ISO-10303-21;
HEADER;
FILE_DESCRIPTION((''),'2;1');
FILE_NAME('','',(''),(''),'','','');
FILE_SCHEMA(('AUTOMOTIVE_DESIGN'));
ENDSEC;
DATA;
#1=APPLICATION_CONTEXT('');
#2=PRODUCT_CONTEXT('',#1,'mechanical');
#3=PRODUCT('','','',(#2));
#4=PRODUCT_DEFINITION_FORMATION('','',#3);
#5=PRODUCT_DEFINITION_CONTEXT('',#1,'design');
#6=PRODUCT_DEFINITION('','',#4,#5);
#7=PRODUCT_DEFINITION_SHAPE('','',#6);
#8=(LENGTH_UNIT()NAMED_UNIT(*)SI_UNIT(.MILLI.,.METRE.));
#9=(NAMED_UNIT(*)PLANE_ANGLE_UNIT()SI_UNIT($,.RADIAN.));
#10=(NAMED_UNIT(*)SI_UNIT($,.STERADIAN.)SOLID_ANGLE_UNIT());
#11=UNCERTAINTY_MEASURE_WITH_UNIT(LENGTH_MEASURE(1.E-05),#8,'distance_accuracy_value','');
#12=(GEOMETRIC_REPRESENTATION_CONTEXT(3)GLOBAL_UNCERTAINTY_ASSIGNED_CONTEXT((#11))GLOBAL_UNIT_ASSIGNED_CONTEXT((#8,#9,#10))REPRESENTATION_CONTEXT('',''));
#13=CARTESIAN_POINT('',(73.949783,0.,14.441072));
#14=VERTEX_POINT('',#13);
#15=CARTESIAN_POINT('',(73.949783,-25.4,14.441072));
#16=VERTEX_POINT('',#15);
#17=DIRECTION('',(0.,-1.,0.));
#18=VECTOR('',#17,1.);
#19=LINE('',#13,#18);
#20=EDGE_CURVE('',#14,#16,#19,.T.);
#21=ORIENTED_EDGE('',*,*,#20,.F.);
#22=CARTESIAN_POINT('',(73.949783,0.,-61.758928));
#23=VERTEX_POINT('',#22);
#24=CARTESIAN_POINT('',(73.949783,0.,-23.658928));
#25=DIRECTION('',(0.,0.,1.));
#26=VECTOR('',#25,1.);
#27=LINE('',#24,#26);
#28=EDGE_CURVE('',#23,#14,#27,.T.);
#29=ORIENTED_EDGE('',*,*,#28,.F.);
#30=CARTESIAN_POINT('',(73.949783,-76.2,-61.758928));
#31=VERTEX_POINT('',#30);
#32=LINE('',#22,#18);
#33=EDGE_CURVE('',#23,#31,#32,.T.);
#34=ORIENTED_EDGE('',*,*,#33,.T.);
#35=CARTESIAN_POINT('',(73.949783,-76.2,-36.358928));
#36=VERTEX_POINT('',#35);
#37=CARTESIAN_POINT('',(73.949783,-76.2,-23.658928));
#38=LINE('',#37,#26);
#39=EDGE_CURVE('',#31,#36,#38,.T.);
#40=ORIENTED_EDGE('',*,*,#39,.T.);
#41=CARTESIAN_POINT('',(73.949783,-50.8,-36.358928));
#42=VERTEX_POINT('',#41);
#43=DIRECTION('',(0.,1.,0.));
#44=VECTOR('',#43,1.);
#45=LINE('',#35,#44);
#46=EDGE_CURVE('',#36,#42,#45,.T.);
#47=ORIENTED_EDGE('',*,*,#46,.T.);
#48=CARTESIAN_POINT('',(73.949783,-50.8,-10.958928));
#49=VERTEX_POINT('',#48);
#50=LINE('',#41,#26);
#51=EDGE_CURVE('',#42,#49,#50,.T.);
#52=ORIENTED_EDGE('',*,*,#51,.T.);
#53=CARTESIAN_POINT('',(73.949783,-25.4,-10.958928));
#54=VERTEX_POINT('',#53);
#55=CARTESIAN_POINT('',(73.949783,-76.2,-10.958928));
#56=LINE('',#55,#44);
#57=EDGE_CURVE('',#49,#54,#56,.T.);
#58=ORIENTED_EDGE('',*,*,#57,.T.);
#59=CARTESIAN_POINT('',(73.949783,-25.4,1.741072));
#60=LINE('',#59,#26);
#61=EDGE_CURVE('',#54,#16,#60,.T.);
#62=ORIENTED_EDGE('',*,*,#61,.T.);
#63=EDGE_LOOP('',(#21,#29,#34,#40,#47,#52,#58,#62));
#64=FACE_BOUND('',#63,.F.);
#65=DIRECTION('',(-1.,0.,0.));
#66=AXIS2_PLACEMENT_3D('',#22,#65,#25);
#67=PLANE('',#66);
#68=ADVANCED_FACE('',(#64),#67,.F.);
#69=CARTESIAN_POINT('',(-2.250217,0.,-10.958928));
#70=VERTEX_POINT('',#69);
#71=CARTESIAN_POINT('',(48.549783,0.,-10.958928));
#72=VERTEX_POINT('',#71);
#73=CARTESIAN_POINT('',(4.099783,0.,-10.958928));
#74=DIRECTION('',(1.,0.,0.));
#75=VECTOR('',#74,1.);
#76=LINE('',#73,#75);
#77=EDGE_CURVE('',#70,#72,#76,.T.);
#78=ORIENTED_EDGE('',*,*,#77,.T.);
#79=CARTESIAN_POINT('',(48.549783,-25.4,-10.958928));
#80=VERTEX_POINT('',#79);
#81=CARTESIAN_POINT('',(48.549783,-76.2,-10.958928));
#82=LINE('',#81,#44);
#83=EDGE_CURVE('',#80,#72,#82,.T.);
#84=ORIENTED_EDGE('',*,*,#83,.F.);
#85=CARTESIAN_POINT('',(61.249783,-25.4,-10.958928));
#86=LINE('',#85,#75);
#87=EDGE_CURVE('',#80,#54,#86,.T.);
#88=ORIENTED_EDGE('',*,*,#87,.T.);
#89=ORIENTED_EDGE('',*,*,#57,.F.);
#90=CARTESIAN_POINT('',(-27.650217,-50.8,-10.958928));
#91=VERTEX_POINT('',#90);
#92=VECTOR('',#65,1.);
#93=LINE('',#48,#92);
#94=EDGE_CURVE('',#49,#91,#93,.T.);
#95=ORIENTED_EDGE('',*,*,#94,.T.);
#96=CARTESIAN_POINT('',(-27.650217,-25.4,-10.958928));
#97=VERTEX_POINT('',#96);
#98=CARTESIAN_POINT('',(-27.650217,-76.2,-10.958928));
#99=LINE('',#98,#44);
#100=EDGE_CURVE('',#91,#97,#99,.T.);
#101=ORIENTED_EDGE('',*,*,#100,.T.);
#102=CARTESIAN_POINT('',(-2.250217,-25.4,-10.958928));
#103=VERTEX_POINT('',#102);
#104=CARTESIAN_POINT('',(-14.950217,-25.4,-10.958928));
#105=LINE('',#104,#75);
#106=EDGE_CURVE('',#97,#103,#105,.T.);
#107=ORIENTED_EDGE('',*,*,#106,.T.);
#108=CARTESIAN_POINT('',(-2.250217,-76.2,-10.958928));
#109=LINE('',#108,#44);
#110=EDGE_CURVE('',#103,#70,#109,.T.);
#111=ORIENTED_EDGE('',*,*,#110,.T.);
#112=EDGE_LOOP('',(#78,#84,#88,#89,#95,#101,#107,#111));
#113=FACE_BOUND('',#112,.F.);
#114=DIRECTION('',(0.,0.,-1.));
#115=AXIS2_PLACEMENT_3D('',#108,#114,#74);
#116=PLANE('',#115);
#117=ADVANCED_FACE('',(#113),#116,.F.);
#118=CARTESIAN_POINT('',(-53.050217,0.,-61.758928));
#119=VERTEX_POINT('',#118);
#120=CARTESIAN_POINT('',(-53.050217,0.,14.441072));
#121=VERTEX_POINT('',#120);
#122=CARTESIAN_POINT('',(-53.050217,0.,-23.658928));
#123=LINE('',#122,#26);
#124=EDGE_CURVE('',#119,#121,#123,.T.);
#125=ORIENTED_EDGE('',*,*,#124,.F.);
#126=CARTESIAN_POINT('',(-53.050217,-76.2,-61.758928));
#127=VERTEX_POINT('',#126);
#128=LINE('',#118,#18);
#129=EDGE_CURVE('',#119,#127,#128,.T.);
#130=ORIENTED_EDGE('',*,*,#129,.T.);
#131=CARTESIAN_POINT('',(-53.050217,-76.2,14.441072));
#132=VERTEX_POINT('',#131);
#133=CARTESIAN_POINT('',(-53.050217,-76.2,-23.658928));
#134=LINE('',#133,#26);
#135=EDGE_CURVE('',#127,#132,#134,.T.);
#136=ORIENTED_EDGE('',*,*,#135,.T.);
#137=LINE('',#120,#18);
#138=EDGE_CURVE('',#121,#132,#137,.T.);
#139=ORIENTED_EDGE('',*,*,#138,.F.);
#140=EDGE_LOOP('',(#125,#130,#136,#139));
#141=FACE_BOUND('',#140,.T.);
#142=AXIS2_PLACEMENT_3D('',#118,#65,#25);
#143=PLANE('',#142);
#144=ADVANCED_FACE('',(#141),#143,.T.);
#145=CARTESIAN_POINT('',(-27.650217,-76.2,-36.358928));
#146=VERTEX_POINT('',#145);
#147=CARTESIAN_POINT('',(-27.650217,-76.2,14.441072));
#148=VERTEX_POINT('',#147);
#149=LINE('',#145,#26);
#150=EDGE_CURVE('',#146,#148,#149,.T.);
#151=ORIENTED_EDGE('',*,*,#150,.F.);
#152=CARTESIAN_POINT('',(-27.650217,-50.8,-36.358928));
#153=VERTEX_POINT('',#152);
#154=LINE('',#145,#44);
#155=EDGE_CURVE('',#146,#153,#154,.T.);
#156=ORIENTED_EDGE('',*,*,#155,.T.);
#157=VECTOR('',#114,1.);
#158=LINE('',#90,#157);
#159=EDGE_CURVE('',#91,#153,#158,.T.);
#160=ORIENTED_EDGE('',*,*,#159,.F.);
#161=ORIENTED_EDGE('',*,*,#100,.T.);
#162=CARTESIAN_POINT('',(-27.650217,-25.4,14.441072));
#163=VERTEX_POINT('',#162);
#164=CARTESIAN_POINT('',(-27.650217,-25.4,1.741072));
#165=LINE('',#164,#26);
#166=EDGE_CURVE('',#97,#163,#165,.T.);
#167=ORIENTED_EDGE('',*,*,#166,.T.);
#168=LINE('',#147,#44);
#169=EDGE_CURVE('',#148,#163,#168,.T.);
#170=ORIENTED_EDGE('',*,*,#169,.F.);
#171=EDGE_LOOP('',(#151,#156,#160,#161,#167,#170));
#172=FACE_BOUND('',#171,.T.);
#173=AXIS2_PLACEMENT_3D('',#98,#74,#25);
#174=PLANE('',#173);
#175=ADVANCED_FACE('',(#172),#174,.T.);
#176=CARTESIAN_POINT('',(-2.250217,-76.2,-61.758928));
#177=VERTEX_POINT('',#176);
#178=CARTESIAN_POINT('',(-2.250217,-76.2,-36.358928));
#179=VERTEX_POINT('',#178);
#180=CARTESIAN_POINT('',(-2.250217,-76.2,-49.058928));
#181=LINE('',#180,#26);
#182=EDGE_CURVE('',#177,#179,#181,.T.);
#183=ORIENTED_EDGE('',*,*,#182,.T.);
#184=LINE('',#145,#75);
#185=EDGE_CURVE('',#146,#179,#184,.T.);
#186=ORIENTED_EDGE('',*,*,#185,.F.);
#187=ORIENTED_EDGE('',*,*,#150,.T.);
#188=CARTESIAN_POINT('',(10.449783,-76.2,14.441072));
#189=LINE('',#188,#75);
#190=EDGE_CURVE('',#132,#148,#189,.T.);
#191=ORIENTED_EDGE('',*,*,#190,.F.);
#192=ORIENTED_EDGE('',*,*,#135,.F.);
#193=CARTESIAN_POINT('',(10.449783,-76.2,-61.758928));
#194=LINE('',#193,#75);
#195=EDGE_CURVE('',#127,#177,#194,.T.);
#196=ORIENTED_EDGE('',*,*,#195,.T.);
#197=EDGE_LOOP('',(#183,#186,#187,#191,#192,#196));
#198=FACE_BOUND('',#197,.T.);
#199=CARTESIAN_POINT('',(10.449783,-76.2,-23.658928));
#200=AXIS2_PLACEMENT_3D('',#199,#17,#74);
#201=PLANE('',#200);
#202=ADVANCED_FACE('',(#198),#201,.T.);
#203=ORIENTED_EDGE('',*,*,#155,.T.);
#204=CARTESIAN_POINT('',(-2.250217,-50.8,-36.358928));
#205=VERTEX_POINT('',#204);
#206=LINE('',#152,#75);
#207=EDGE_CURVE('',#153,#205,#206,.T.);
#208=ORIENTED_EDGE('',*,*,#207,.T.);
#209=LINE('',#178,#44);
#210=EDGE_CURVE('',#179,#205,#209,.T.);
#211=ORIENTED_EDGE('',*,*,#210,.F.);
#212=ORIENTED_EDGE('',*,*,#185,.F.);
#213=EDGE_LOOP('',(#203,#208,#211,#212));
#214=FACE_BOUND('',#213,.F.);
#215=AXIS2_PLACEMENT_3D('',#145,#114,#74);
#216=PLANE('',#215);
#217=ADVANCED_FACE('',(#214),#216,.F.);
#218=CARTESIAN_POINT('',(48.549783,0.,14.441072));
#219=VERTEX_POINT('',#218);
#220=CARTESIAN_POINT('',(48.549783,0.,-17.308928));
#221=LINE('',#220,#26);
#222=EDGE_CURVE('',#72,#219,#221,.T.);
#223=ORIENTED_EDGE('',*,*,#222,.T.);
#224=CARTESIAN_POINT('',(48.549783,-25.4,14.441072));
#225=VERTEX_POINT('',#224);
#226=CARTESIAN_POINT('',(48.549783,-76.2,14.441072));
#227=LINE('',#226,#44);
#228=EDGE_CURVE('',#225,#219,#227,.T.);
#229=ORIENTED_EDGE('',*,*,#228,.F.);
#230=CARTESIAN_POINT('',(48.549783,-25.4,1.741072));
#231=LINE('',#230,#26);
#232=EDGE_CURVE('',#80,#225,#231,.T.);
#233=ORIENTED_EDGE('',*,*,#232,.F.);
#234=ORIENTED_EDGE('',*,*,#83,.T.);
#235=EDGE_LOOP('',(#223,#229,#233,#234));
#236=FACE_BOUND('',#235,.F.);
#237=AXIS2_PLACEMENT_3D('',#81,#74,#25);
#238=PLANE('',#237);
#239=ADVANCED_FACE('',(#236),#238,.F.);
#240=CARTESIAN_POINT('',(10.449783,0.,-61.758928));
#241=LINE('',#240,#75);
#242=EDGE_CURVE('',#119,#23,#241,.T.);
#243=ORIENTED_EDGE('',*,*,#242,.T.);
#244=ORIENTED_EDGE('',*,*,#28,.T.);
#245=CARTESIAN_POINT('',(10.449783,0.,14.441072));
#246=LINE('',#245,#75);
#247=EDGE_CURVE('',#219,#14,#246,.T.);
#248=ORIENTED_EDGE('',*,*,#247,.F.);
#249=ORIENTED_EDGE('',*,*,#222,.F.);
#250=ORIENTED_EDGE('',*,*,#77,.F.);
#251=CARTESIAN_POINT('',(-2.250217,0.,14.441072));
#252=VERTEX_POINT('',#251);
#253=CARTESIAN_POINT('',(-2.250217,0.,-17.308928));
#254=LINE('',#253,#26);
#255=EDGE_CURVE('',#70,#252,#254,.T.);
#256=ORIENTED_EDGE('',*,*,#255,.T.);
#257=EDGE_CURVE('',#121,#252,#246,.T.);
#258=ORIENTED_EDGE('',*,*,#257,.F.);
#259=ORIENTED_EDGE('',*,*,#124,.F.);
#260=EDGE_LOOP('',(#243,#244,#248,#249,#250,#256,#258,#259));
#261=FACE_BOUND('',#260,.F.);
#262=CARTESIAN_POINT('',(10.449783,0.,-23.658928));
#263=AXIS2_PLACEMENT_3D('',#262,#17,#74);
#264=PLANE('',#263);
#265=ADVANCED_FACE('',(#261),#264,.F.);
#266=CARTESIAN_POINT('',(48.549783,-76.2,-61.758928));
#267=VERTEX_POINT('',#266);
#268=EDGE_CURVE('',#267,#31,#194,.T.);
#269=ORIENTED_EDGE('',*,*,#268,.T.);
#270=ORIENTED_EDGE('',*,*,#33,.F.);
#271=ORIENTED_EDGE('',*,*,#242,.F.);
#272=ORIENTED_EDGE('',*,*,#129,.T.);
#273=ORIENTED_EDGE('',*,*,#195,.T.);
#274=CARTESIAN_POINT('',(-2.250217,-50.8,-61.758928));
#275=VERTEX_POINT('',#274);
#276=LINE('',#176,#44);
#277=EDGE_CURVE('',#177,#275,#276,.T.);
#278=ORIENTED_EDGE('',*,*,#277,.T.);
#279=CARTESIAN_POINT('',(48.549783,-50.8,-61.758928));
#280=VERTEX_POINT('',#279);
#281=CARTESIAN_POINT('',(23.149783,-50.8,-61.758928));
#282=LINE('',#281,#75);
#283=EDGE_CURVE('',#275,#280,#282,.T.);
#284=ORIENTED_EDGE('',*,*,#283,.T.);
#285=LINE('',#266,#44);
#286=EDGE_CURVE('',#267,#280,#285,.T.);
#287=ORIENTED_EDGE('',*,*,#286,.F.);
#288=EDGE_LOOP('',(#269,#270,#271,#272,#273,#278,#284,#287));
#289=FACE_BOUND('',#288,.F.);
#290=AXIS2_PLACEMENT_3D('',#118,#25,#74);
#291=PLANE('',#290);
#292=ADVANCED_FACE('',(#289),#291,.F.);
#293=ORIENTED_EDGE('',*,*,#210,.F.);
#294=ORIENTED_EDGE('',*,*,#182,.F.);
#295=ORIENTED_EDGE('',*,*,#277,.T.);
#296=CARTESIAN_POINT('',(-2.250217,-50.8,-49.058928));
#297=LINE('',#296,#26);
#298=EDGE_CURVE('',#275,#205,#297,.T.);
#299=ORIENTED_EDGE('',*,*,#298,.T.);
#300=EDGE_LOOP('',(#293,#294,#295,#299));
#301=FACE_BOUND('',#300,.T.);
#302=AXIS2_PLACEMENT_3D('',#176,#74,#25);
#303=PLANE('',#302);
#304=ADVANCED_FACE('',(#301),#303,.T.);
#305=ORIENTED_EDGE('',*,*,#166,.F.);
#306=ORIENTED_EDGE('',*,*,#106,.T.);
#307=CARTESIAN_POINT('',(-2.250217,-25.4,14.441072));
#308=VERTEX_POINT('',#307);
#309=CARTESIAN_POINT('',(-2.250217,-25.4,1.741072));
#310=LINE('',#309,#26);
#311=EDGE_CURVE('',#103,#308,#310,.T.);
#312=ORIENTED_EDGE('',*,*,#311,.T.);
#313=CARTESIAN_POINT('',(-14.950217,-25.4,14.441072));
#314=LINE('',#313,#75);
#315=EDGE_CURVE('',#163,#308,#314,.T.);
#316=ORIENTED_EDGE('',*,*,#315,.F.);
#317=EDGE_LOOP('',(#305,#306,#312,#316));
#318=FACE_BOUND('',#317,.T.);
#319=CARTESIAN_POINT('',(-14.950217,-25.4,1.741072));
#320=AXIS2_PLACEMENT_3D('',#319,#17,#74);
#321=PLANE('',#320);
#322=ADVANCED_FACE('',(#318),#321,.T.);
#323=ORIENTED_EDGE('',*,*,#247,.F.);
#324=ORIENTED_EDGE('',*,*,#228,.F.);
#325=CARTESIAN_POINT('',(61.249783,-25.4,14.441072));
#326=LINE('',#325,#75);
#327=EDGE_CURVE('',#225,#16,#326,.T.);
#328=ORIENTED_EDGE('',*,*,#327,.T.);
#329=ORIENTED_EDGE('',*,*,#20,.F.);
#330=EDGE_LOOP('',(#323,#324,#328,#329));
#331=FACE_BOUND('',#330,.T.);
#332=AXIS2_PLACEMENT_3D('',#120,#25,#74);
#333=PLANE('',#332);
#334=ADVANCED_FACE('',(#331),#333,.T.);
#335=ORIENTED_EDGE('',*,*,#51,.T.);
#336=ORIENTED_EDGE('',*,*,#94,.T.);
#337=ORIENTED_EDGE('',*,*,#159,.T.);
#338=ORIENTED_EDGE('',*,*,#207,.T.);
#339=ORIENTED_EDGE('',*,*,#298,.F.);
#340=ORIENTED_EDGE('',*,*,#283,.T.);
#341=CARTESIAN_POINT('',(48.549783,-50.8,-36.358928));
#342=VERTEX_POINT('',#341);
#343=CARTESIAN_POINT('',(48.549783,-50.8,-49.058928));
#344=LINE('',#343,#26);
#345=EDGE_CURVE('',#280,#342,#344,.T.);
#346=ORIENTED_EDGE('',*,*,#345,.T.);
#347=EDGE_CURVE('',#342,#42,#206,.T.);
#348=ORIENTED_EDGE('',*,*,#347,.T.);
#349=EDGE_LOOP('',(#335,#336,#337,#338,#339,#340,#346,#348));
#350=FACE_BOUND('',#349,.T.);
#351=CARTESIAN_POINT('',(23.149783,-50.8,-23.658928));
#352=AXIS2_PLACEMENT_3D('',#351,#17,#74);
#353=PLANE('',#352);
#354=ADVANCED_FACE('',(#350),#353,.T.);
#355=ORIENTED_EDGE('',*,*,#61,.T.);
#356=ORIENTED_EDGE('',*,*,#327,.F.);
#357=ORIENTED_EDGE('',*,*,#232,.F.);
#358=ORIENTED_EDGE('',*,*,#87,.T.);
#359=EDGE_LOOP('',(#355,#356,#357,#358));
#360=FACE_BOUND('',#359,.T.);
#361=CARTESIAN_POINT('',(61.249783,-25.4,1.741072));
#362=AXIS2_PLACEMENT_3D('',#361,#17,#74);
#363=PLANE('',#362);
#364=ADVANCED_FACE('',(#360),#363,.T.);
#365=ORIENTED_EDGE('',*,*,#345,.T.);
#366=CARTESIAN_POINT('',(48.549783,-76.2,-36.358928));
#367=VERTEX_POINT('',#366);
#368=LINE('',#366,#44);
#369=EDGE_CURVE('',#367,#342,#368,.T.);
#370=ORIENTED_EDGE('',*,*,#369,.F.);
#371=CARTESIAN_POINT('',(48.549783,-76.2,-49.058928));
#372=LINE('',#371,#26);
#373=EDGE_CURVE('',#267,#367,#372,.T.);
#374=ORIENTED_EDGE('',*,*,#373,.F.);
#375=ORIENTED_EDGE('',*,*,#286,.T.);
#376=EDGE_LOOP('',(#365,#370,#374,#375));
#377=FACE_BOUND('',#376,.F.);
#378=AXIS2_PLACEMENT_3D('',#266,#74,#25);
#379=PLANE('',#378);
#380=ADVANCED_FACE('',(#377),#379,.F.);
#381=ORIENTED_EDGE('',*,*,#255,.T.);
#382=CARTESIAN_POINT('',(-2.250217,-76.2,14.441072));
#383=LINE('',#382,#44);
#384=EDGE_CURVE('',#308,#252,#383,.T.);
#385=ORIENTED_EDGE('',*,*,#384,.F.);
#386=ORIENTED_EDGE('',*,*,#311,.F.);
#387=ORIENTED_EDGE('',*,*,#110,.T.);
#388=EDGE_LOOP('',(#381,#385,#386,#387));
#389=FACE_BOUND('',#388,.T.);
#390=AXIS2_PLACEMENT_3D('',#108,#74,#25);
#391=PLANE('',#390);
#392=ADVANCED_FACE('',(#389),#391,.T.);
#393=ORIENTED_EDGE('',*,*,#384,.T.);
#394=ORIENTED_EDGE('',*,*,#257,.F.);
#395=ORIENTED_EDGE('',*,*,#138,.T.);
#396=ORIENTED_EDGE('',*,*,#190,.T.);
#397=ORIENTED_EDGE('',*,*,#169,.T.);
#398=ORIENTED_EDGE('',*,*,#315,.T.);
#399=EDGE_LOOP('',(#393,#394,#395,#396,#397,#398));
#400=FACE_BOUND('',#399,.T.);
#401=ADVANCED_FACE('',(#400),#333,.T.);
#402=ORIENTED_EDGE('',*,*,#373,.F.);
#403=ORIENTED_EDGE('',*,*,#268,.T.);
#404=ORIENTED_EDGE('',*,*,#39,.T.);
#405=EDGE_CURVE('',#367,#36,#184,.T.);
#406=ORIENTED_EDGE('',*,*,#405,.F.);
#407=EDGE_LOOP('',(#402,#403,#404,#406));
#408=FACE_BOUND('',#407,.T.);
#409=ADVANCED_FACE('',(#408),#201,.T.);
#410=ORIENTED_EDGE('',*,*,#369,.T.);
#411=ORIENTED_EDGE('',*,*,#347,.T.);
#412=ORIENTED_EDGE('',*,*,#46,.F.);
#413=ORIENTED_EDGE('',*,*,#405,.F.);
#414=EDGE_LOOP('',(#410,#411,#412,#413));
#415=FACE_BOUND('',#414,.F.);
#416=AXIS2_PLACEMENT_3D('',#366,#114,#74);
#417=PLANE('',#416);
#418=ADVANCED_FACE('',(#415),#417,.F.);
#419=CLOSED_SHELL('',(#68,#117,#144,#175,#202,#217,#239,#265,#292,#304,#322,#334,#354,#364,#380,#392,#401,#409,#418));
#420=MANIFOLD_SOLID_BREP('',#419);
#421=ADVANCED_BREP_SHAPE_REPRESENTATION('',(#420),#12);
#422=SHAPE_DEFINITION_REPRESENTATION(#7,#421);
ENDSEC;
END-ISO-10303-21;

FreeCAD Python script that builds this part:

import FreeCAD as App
import Part
import Sketcher
Q = App.Units.Quantity


def add_polygon(sketch, points):
    """Adds a closed chain of lines whose ends are joined by coincident constraints."""
    first, n = sketch.GeometryCount, len(points)
    for a, b in zip(points, points[1:] + points[:1]):
        sketch.addGeometry(Part.LineSegment(App.Vector(*a, 0), App.Vector(*b, 0)), False)
    for i in range(n):
        sketch.addConstraint(Sketcher.Constraint("Coincident", first + i, 2, first + (i + 1) % n, 1))

doc = App.newDocument("Part")
body = doc.addObject("PartDesign::Body", "Body")

# Sketch on XZ plane
sketch1 = body.newObject("Sketcher::SketchObject", "Sketch")
sketch1.AttachmentSupport = (doc.getObject("XZ_Plane"), [""])
sketch1.MapMode = "FlatFace"
add_polygon(sketch1, [(-53, 14), (-53, -62), (74, -62), (74, 14)])  # lines 0-3
sketch1.addConstraint([
    Sketcher.Constraint("Vertical", 0),
    Sketcher.Constraint("Horizontal", 1),
    Sketcher.Constraint("Vertical", 2),
    Sketcher.Constraint("Horizontal", 3),
    Sketcher.Constraint("DistanceX", 1, 1, 1, 2, Q("5 in")),
    Sketcher.Constraint("DistanceY", 0, 2, 0, 1, Q("3 in")),
    Sketcher.Constraint("DistanceX", 0, 2, -1, 1, 53.050217),
    Sketcher.Constraint("DistanceY", 0, 2, -1, 1, 61.758928),
])
pad1 = body.newObject("PartDesign::Pad", "Pad")
pad1.Profile = sketch1
pad1.Length = Q("3 in")

# Sketch on XZ plane
sketch2 = body.newObject("Sketcher::SketchObject", "Sketch001")
sketch2.AttachmentSupport = (doc.getObject("XZ_Plane"), [""])
sketch2.MapMode = "FlatFace"
sketch2.AttachmentOffset = App.Placement(App.Vector(0, 0, 3 * 25.4), App.Rotation())
add_polygon(sketch2, [(-28, 14), (-28, -11), (-2, -11), (-2, 14)])  # lines 0-3
add_polygon(sketch2, [(49, 14), (49, -11), (74, -11), (74, 14)])  # lines 4-7
sketch2.addConstraint([
    Sketcher.Constraint("Vertical", 0),
    Sketcher.Constraint("Horizontal", 1),
    Sketcher.Constraint("Vertical", 2),
    Sketcher.Constraint("Horizontal", 3),
    Sketcher.Constraint("Vertical", 4),
    Sketcher.Constraint("Horizontal", 5),
    Sketcher.Constraint("Vertical", 6),
    Sketcher.Constraint("Horizontal", 7),
    Sketcher.Constraint("Horizontal", 1, 2, 4, 2),
    Sketcher.Constraint("Horizontal", 3, 2, 6, 2),
    Sketcher.Constraint("Equal", 3, 5),
    Sketcher.Constraint("Equal", 7, 0),
    Sketcher.Constraint("DistanceX", 1, 1, 1, 2, Q("1 in")),
    Sketcher.Constraint("DistanceX", 1, 2, 4, 2, Q("2 in")),
    Sketcher.Constraint("DistanceX", 0, 2, -1, 1, 27.650217),
    Sketcher.Constraint("DistanceY", 0, 2, -1, 1, 10.958928),
])
pocket1 = body.newObject("PartDesign::Pocket", "Pocket")
pocket1.Profile = sketch2
pocket1.Length = Q("2 in")

# Sketch on XZ plane
sketch3 = body.newObject("Sketcher::SketchObject", "Sketch002")
sketch3.AttachmentSupport = (doc.getObject("XZ_Plane"), [""])
sketch3.MapMode = "FlatFace"
sketch3.AttachmentOffset = App.Placement(App.Vector(0, 0, 3 * 25.4), App.Rotation())
add_polygon(sketch3, [(-2, 14), (-2, -11), (49, -11), (49, 14)])  # lines 0-3
sketch3.addConstraint([
    Sketcher.Constraint("Vertical", 0),
    Sketcher.Constraint("Horizontal", 1),
    Sketcher.Constraint("Vertical", 2),
    Sketcher.Constraint("Horizontal", 3),
    Sketcher.Constraint("DistanceX", 1, 1, 1, 2, Q("2 in")),
    Sketcher.Constraint("DistanceY", 0, 2, 0, 1, Q("1 in")),
    Sketcher.Constraint("DistanceX", 0, 2, -1, 1, 2.250217),
    Sketcher.Constraint("DistanceY", 0, 2, -1, 1, 10.958928),
])
pocket2 = body.newObject("PartDesign::Pocket", "Pocket001")
pocket2.Profile = sketch3
pocket2.Type = "ThroughAll"

# Sketch on XZ plane
sketch4 = body.newObject("Sketcher::SketchObject", "Sketch003")
sketch4.AttachmentSupport = (doc.getObject("XZ_Plane"), [""])
sketch4.MapMode = "FlatFace"
sketch4.AttachmentOffset = App.Placement(App.Vector(0, 0, 3 * 25.4), App.Rotation())
add_polygon(sketch4, [(-28, -11), (-28, -36), (-2, -36), (-2, -62), (49, -62), (49, -36), (74, -36), (74, -11)])  # lines 0-7
sketch4.addConstraint([
    Sketcher.Constraint("Vertical", 0),
    Sketcher.Constraint("Horizontal", 1),
    Sketcher.Constraint("Vertical", 2),
    Sketcher.Constraint("Horizontal", 3),
    Sketcher.Constraint("Vertical", 4),
    Sketcher.Constraint("Horizontal", 5),
    Sketcher.Constraint("Vertical", 6),
    Sketcher.Constraint("Horizontal", 7),
    Sketcher.Constraint("Horizontal", 1, 2, 4, 2),
    Sketcher.Constraint("Equal", 1, 5),
    Sketcher.Constraint("Equal", 5, 0),
    Sketcher.Constraint("Equal", 0, 2),
    Sketcher.Constraint("DistanceX", 1, 1, 1, 2, Q("1 in")),
    Sketcher.Constraint("DistanceX", 3, 1, 3, 2, Q("2 in")),
    Sketcher.Constraint("DistanceX", 0, 2, -1, 1, 27.650217),
    Sketcher.Constraint("DistanceY", 0, 2, -1, 1, 36.358928),
])
pocket3 = body.newObject("PartDesign::Pocket", "Pocket002")
pocket3.Profile = sketch4
pocket3.Length = Q("1 in")

doc.recompute()
